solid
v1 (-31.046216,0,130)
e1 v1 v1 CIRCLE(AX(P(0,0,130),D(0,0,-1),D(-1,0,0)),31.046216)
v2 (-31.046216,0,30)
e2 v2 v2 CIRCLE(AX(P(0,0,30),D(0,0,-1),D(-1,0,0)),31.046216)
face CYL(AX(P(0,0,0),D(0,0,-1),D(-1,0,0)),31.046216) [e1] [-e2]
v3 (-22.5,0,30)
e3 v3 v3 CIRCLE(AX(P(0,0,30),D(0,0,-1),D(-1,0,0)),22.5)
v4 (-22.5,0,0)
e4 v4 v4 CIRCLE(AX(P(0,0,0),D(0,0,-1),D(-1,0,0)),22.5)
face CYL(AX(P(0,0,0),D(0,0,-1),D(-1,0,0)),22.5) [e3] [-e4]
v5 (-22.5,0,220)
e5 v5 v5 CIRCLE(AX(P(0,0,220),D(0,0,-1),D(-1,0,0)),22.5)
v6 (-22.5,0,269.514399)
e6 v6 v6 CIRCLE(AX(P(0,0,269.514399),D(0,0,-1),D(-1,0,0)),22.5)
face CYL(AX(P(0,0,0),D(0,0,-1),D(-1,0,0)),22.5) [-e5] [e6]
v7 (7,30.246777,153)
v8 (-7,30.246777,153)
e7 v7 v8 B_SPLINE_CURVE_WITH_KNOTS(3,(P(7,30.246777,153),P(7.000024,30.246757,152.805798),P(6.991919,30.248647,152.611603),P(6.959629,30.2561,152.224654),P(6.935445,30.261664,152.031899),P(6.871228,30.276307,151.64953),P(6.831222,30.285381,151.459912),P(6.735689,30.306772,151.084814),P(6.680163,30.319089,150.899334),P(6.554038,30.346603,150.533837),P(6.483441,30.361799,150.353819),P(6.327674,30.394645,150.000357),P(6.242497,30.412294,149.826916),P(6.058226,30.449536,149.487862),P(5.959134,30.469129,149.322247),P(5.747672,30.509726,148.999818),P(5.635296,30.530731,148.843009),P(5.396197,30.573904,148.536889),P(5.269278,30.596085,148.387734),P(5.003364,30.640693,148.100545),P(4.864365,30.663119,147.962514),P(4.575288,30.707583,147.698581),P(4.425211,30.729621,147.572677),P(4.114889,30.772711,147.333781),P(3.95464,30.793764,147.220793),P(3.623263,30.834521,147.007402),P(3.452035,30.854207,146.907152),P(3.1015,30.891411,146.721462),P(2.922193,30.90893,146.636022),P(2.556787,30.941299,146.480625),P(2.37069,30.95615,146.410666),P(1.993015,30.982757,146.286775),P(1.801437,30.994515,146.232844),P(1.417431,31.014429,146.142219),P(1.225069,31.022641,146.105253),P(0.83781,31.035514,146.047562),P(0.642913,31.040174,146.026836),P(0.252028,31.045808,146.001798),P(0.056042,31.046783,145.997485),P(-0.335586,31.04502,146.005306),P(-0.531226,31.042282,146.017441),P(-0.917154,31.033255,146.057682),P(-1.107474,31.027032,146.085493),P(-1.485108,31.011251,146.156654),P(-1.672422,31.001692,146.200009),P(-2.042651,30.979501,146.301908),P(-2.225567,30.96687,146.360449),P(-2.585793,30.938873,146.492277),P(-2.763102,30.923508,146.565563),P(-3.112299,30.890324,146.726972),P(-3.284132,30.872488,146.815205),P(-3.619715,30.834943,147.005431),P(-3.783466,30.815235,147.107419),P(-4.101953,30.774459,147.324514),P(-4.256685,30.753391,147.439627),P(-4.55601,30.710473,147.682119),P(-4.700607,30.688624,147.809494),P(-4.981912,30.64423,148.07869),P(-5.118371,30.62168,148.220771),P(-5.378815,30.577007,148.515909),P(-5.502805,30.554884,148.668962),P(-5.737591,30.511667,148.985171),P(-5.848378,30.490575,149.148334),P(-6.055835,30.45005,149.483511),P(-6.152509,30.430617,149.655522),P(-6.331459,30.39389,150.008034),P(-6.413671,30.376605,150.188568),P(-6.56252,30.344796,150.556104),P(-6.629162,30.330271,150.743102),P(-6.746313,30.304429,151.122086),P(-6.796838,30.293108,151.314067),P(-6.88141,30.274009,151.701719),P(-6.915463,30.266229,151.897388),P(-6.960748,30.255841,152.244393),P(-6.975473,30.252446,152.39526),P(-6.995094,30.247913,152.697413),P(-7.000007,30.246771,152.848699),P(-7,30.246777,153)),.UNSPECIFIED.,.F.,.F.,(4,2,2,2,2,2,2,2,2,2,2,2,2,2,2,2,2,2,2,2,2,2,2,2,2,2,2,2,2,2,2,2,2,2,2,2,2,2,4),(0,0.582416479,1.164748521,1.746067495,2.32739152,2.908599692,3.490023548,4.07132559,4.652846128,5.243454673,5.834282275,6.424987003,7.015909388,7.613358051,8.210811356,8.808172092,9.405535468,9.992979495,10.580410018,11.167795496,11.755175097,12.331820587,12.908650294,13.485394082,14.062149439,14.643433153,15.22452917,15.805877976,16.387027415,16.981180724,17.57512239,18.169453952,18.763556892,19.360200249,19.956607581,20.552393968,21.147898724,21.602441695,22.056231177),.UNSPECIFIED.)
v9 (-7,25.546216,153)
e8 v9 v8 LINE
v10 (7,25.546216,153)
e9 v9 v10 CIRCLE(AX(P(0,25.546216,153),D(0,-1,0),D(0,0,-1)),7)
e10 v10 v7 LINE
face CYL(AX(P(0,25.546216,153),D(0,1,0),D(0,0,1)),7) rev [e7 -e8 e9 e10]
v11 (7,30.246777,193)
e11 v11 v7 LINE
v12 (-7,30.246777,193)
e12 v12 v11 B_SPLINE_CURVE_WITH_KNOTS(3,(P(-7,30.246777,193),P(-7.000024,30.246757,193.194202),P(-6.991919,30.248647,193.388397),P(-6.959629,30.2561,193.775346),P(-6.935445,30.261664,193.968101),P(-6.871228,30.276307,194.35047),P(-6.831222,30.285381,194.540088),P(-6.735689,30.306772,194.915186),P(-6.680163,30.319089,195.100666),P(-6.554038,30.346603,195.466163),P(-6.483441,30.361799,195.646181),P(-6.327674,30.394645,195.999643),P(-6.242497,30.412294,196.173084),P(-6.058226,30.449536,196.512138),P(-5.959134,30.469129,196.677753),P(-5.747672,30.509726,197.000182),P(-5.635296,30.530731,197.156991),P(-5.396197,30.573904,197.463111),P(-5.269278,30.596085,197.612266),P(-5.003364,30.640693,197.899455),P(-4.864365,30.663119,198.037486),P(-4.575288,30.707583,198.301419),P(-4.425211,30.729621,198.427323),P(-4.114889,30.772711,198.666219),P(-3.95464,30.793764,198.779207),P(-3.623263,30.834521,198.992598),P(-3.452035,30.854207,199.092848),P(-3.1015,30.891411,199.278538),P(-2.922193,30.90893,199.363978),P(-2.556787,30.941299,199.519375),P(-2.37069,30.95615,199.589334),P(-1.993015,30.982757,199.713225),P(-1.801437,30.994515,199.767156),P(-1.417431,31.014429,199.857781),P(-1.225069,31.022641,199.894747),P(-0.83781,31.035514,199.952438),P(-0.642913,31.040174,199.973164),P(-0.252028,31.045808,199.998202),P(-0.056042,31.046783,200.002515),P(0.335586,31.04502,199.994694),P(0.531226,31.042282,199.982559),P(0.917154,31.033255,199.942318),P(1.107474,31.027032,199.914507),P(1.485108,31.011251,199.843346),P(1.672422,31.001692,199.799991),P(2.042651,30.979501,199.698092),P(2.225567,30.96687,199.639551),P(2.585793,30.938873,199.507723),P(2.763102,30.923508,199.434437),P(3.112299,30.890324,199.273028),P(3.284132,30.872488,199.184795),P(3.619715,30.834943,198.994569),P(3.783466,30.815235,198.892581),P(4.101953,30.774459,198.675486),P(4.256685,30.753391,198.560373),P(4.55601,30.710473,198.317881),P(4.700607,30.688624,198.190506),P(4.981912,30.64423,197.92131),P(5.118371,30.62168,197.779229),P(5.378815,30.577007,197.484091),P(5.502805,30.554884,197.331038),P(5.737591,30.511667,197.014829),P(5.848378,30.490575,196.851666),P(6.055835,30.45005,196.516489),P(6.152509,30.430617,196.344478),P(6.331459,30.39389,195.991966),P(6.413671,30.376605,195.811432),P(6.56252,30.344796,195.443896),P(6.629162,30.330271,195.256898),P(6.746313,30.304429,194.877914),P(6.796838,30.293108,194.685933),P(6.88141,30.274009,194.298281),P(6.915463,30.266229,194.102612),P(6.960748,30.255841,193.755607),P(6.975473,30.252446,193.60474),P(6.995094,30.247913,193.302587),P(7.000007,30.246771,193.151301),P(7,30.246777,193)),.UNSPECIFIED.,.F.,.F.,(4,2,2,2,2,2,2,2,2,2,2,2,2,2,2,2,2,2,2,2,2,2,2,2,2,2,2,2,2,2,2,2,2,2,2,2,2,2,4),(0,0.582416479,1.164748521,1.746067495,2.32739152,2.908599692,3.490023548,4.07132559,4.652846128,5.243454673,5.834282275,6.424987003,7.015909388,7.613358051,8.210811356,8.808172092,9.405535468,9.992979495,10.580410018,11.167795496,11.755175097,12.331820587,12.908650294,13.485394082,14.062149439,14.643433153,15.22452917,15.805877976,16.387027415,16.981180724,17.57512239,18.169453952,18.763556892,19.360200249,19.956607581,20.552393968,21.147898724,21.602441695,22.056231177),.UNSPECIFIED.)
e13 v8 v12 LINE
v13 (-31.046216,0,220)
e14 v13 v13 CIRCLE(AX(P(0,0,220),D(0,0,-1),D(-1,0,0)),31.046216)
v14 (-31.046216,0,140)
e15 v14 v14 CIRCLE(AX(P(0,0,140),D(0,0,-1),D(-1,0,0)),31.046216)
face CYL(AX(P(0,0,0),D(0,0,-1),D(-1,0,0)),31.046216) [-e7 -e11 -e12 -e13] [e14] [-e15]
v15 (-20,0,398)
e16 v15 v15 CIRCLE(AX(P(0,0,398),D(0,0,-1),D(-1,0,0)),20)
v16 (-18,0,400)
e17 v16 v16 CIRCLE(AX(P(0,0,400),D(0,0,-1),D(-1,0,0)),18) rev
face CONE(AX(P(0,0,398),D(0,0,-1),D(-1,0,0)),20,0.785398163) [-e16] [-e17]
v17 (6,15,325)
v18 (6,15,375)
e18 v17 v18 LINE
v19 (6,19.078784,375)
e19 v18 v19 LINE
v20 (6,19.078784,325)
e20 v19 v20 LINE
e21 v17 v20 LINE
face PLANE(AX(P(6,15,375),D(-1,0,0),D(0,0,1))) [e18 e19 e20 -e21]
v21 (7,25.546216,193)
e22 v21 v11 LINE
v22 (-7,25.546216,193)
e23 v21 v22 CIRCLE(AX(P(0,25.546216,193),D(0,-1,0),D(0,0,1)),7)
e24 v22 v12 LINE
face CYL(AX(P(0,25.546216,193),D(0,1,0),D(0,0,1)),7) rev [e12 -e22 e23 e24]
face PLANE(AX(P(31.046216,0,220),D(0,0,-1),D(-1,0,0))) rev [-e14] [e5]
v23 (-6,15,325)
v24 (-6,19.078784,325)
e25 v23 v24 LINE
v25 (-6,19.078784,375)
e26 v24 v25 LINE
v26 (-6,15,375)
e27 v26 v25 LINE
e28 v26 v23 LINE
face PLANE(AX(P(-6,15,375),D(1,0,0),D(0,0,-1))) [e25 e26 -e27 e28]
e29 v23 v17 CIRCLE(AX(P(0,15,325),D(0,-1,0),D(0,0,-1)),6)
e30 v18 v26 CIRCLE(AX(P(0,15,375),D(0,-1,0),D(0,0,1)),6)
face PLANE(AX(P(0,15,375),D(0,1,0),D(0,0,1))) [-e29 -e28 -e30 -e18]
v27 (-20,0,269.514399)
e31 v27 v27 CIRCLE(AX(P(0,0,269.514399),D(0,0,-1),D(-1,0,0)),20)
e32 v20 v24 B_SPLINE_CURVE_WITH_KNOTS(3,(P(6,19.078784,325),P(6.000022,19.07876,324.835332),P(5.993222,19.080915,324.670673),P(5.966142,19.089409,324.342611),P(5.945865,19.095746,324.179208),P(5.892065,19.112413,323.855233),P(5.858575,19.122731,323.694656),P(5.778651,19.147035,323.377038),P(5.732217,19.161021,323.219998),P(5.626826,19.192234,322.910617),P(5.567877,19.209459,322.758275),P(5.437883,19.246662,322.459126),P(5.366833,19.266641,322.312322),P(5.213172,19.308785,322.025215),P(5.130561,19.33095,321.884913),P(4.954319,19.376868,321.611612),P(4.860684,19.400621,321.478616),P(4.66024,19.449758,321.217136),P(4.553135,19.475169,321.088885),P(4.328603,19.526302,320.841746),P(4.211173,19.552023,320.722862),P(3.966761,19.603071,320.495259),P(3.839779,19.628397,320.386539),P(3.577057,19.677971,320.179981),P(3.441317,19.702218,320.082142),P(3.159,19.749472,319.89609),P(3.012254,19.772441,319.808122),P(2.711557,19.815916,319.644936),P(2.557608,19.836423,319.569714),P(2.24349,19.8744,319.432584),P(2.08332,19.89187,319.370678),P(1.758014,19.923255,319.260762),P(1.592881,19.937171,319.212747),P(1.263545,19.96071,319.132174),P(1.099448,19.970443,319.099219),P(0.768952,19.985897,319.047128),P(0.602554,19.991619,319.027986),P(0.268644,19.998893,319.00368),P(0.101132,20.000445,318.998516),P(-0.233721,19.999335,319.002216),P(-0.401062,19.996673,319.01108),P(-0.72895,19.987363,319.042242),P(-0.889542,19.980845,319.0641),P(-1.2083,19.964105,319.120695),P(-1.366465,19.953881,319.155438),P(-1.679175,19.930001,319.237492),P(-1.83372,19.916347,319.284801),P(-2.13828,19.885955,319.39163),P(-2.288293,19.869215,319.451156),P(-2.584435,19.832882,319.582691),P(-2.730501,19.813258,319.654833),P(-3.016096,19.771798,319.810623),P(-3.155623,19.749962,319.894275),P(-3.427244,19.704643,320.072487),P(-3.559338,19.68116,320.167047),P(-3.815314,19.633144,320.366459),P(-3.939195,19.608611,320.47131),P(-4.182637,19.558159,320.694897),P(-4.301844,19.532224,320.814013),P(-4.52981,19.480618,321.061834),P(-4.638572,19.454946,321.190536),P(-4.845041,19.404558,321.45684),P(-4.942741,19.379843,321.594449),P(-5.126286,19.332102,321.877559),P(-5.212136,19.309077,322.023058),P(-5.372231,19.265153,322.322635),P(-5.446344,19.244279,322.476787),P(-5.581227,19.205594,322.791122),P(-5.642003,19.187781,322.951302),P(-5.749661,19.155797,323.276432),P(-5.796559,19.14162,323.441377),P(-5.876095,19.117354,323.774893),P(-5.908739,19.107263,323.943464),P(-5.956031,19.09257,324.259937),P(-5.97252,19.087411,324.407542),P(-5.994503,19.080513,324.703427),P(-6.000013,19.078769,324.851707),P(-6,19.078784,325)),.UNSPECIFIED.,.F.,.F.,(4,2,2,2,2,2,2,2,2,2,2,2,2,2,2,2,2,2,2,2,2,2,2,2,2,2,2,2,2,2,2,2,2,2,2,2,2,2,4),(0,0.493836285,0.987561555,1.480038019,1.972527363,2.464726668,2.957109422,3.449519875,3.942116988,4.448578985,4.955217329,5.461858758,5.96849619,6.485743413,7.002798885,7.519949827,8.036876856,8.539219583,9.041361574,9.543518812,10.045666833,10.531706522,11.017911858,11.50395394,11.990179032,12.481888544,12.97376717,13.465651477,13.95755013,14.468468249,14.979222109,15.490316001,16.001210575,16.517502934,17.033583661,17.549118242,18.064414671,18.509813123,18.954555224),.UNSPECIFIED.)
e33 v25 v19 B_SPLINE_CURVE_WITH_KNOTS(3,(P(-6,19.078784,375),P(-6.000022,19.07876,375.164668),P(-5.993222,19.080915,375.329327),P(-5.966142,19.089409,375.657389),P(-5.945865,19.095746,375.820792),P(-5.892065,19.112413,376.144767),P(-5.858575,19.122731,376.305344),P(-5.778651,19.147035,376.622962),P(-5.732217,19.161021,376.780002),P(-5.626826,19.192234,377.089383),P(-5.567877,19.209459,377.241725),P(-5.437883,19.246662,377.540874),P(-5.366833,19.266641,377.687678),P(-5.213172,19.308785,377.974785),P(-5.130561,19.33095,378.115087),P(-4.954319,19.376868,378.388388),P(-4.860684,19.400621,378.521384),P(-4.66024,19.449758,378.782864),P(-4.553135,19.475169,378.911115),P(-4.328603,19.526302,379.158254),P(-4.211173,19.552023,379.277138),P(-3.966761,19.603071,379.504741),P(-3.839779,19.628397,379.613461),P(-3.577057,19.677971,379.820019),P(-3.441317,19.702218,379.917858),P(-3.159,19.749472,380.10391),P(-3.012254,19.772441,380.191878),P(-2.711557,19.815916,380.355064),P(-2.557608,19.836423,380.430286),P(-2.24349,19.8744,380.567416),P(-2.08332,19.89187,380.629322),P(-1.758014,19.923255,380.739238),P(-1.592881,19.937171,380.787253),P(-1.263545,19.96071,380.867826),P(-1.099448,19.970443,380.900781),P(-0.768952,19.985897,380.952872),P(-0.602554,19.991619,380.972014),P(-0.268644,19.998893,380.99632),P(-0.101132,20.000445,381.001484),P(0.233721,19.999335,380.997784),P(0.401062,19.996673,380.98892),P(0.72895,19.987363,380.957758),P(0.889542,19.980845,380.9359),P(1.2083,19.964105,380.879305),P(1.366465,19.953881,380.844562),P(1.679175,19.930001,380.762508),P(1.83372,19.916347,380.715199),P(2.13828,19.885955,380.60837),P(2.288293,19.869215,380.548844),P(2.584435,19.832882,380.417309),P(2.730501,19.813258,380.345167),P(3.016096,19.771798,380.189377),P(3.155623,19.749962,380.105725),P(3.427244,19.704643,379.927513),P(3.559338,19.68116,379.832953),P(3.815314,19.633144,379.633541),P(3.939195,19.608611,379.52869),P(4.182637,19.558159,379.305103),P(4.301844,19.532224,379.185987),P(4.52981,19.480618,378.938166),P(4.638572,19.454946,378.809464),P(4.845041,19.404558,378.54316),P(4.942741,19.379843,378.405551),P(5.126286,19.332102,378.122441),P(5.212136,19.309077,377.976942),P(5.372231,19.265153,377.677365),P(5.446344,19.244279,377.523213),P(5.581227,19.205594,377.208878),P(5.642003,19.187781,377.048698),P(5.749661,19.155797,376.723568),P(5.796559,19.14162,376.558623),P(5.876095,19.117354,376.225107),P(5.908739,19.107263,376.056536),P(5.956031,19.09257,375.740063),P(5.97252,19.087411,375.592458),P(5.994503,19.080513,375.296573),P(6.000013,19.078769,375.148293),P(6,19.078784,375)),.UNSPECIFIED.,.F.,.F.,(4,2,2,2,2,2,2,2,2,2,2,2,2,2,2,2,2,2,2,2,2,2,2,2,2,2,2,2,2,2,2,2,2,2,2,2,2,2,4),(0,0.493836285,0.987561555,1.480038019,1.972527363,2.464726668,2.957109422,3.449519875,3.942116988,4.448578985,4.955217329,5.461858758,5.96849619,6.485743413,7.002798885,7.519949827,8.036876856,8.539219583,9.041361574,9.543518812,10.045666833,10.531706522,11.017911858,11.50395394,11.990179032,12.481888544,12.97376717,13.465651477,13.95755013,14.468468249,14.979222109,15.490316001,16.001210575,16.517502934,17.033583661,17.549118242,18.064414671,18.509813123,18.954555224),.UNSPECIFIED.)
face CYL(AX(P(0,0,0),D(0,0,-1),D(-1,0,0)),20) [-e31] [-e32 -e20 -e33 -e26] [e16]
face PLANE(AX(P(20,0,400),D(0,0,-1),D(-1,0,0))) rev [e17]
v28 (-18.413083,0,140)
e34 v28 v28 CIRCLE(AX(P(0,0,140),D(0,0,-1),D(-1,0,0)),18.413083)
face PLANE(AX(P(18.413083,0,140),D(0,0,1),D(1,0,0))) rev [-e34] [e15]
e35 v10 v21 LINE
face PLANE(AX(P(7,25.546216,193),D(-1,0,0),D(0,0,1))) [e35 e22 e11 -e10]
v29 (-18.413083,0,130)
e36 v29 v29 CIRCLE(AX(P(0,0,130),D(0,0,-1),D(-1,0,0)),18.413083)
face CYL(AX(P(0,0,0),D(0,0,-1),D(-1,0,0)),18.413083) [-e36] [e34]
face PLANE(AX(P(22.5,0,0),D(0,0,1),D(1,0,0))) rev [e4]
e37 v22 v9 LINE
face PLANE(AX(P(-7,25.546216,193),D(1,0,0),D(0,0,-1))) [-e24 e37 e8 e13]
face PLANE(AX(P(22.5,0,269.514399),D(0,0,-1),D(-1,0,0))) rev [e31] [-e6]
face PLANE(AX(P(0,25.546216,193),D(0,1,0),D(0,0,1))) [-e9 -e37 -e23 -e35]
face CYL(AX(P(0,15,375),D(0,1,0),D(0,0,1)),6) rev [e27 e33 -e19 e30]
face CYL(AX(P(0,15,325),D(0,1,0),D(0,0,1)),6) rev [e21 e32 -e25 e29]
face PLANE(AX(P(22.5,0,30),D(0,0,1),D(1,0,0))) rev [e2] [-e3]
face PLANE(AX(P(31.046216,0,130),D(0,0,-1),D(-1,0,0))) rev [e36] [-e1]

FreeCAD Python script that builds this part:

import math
import FreeCAD as App
import Part
import Sketcher
from FreeCAD import Vector
Q = App.Units.Quantity


def edges_at(feature, points):
    """Names of the edges that pass closest to the given points."""
    edges = feature.Shape.Edges
    near = lambda p: min(range(len(edges)), key=lambda i: edges[i].distToShape(Part.Vertex(*p))[0])
    return sorted({f"Edge{near(p) + 1}" for p in points})

doc = App.newDocument("Part")
body = doc.addObject("PartDesign::Body", "Body")

# Sketch on XZ plane
sketch1 = doc.addObject("Sketcher::SketchObject", "Sketch")
body.addObject(sketch1)
sketch1.AttachmentSupport = (doc.XZ_Plane, [""])
sketch1.MapMode = "FlatFace"
sketch1.addGeometry([
    Part.LineSegment(Vector(0, 0, 0), Vector(0, 400, 0)),  # 0
    Part.LineSegment(Vector(0, 400, 0), Vector(20, 400, 0)),  # 1
    Part.LineSegment(Vector(20, 400, 0), Vector(20, 269.5, 0)),  # 2
    Part.LineSegment(Vector(20, 269.5, 0), Vector(22.5, 269.5, 0)),  # 3
    Part.LineSegment(Vector(22.5, 269.5, 0), Vector(22.5, 220, 0)),  # 4
    Part.LineSegment(Vector(22.5, 220, 0), Vector(31, 220, 0)),  # 5
    Part.LineSegment(Vector(31, 220, 0), Vector(31, 140, 0)),  # 6
    Part.LineSegment(Vector(31, 140, 0), Vector(18.4, 140, 0)),  # 7
    Part.LineSegment(Vector(18.4, 140, 0), Vector(18.4, 130, 0)),  # 8
    Part.LineSegment(Vector(18.4, 130, 0), Vector(31, 130, 0)),  # 9
    Part.LineSegment(Vector(31, 130, 0), Vector(31, 30, 0)),  # 10
    Part.LineSegment(Vector(31, 30, 0), Vector(22.5, 30, 0)),  # 11
    Part.LineSegment(Vector(22.5, 30, 0), Vector(22.5, 0, 0)),  # 12
    Part.LineSegment(Vector(22.5, 0, 0), Vector(0, 0, 0)),  # 13
], False)
sketch1.addConstraint([
    Sketcher.Constraint("Coincident", 0, 2, 1, 1),
    Sketcher.Constraint("Coincident", 1, 2, 2, 1),
    Sketcher.Constraint("Coincident", 2, 2, 3, 1),
    Sketcher.Constraint("Coincident", 3, 2, 4, 1),
    Sketcher.Constraint("Coincident", 4, 2, 5, 1),
    Sketcher.Constraint("Coincident", 5, 2, 6, 1),
    Sketcher.Constraint("Coincident", 6, 2, 7, 1),
    Sketcher.Constraint("Coincident", 7, 2, 8, 1),
    Sketcher.Constraint("Coincident", 8, 2, 9, 1),
    Sketcher.Constraint("Coincident", 9, 2, 10, 1),
    Sketcher.Constraint("Coincident", 10, 2, 11, 1),
    Sketcher.Constraint("Coincident", 11, 2, 12, 1),
    Sketcher.Constraint("Coincident", 12, 2, 13, 1),
    Sketcher.Constraint("Coincident", 13, 2, 0, 1),
    Sketcher.Constraint("Vertical", 0),
    Sketcher.Constraint("Horizontal", 1),
    Sketcher.Constraint("Vertical", 2),
    Sketcher.Constraint("Horizontal", 3),
    Sketcher.Constraint("Vertical", 4),
    Sketcher.Constraint("Horizontal", 5),
    Sketcher.Constraint("Vertical", 6),
    Sketcher.Constraint("Horizontal", 7),
    Sketcher.Constraint("Vertical", 8),
    Sketcher.Constraint("Horizontal", 9),
    Sketcher.Constraint("Vertical", 10),
    Sketcher.Constraint("Horizontal", 11),
    Sketcher.Constraint("Vertical", 12),
    Sketcher.Constraint("Horizontal", 13),
    Sketcher.Constraint("Coincident", 13, 2, -1, 1),
    Sketcher.Constraint("Vertical", 6, 2, 9, 2),
    Sketcher.Constraint("Vertical", 4, 2, 11, 2),
    Sketcher.Constraint("DistanceX", 1, 1, 1, 2, Q("20 mm")),
    Sketcher.Constraint("DistanceY", 0, 1, 0, 2, Q("400 mm")),
    Sketcher.Constraint("DistanceY", 6, 2, 6, 1, Q("80 mm")),
    Sketcher.Constraint("DistanceY", 8, 2, 8, 1, Q("10 mm")),
    Sketcher.Constraint("DistanceY", 10, 2, 10, 1, Q("100 mm")),
    Sketcher.Constraint("DistanceY", 12, 2, 12, 1, Q("30 mm")),
    Sketcher.Constraint("DistanceX", 3, 1, 3, 2, Q("2.5 mm")),
    Sketcher.Constraint("DistanceY", 2, 2, 2, 1, Q("130.485601 mm")),
    Sketcher.Constraint("DistanceX", 5, 1, 5, 2, Q("8.546216 mm")),
    Sketcher.Constraint("DistanceX", 7, 2, 7, 1, Q("12.633134 mm")),
])
revolution = doc.addObject("PartDesign::Revolution", "Revolution")
body.addObject(revolution)
revolution.Profile = sketch1
revolution.ReferenceAxis = (sketch1, ["V_Axis"])
revolution.Angle = 360

# Sketch on XZ plane
sketch2 = doc.addObject("Sketcher::SketchObject", "Sketch001")
body.addObject(sketch2)
sketch2.AttachmentSupport = (doc.XZ_Plane, [""])
sketch2.MapMode = "FlatFace"
sketch2.AttachmentOffset = App.Placement(Vector(0, 0, -20), App.Rotation())
sketch2.addGeometry([
    Part.LineSegment(Vector(-6, 375, 0), Vector(-6, 325, 0)),
    Part.ArcOfCircle(Part.Circle(Vector(0, 325, 0), Vector(0, 0, 1), 6), math.radians(180), math.radians(360)),
    Part.LineSegment(Vector(6, 325, 0), Vector(6, 375, 0)),
    Part.ArcOfCircle(Part.Circle(Vector(0, 375, 0), Vector(0, 0, 1), 6), math.radians(0), math.radians(180)),
], False)
sketch2.addConstraint([
    Sketcher.Constraint("Tangent", 0, 2, 1, 1),
    Sketcher.Constraint("Tangent", 1, 2, 2, 1),
    Sketcher.Constraint("Tangent", 2, 2, 3, 1),
    Sketcher.Constraint("Tangent", 3, 2, 0, 1),
    Sketcher.Constraint("Vertical", 0),
    Sketcher.Constraint("Vertical", 2),
    Sketcher.Constraint("PointOnObject", 1, 3, -2),
    Sketcher.Constraint("Radius", 1, Q("6 mm")),
    Sketcher.Constraint("DistanceY", 0, 2, 0, 1, Q("50 mm")),
    Sketcher.Constraint("DistanceY", -1, 1, 1, 3, Q("325 mm")),
])
pocket1 = doc.addObject("PartDesign::Pocket", "Pocket")
body.addObject(pocket1)
pocket1.Profile = sketch2
pocket1.Length = 5
pocket1.Reversed = True

# Sketch on XZ plane
sketch3 = doc.addObject("Sketcher::SketchObject", "Sketch002")
body.addObject(sketch3)
sketch3.AttachmentSupport = (doc.XZ_Plane, [""])
sketch3.MapMode = "FlatFace"
sketch3.AttachmentOffset = App.Placement(Vector(0, 0, -31.046216), App.Rotation())
sketch3.addGeometry([
    Part.LineSegment(Vector(-7, 193, 0), Vector(-7, 153, 0)),
    Part.ArcOfCircle(Part.Circle(Vector(0, 153, 0), Vector(0, 0, 1), 7), math.radians(180), math.radians(360)),
    Part.LineSegment(Vector(7, 153, 0), Vector(7, 193, 0)),
    Part.ArcOfCircle(Part.Circle(Vector(0, 193, 0), Vector(0, 0, 1), 7), math.radians(0), math.radians(180)),
], False)
sketch3.addConstraint([
    Sketcher.Constraint("Tangent", 0, 2, 1, 1),
    Sketcher.Constraint("Tangent", 1, 2, 2, 1),
    Sketcher.Constraint("Tangent", 2, 2, 3, 1),
    Sketcher.Constraint("Tangent", 3, 2, 0, 1),
    Sketcher.Constraint("Vertical", 0),
    Sketcher.Constraint("Vertical", 2),
    Sketcher.Constraint("PointOnObject", 1, 3, -2),
    Sketcher.Constraint("Radius", 1, Q("7 mm")),
    Sketcher.Constraint("DistanceY", 0, 2, 0, 1, Q("40 mm")),
    Sketcher.Constraint("DistanceY", -1, 1, 1, 3, Q("153 mm")),
])
pocket2 = doc.addObject("PartDesign::Pocket", "Pocket001")
body.addObject(pocket2)
pocket2.Profile = sketch3
pocket2.Length = 5.5
pocket2.Reversed = True
doc.recompute()

chamfer = doc.addObject("PartDesign::Chamfer", "Chamfer")
body.addObject(chamfer)
chamfer.Base = (pocket2, edges_at(pocket2, [(-20, 0, 400)]))
chamfer.Size = 2

doc.recompute()
